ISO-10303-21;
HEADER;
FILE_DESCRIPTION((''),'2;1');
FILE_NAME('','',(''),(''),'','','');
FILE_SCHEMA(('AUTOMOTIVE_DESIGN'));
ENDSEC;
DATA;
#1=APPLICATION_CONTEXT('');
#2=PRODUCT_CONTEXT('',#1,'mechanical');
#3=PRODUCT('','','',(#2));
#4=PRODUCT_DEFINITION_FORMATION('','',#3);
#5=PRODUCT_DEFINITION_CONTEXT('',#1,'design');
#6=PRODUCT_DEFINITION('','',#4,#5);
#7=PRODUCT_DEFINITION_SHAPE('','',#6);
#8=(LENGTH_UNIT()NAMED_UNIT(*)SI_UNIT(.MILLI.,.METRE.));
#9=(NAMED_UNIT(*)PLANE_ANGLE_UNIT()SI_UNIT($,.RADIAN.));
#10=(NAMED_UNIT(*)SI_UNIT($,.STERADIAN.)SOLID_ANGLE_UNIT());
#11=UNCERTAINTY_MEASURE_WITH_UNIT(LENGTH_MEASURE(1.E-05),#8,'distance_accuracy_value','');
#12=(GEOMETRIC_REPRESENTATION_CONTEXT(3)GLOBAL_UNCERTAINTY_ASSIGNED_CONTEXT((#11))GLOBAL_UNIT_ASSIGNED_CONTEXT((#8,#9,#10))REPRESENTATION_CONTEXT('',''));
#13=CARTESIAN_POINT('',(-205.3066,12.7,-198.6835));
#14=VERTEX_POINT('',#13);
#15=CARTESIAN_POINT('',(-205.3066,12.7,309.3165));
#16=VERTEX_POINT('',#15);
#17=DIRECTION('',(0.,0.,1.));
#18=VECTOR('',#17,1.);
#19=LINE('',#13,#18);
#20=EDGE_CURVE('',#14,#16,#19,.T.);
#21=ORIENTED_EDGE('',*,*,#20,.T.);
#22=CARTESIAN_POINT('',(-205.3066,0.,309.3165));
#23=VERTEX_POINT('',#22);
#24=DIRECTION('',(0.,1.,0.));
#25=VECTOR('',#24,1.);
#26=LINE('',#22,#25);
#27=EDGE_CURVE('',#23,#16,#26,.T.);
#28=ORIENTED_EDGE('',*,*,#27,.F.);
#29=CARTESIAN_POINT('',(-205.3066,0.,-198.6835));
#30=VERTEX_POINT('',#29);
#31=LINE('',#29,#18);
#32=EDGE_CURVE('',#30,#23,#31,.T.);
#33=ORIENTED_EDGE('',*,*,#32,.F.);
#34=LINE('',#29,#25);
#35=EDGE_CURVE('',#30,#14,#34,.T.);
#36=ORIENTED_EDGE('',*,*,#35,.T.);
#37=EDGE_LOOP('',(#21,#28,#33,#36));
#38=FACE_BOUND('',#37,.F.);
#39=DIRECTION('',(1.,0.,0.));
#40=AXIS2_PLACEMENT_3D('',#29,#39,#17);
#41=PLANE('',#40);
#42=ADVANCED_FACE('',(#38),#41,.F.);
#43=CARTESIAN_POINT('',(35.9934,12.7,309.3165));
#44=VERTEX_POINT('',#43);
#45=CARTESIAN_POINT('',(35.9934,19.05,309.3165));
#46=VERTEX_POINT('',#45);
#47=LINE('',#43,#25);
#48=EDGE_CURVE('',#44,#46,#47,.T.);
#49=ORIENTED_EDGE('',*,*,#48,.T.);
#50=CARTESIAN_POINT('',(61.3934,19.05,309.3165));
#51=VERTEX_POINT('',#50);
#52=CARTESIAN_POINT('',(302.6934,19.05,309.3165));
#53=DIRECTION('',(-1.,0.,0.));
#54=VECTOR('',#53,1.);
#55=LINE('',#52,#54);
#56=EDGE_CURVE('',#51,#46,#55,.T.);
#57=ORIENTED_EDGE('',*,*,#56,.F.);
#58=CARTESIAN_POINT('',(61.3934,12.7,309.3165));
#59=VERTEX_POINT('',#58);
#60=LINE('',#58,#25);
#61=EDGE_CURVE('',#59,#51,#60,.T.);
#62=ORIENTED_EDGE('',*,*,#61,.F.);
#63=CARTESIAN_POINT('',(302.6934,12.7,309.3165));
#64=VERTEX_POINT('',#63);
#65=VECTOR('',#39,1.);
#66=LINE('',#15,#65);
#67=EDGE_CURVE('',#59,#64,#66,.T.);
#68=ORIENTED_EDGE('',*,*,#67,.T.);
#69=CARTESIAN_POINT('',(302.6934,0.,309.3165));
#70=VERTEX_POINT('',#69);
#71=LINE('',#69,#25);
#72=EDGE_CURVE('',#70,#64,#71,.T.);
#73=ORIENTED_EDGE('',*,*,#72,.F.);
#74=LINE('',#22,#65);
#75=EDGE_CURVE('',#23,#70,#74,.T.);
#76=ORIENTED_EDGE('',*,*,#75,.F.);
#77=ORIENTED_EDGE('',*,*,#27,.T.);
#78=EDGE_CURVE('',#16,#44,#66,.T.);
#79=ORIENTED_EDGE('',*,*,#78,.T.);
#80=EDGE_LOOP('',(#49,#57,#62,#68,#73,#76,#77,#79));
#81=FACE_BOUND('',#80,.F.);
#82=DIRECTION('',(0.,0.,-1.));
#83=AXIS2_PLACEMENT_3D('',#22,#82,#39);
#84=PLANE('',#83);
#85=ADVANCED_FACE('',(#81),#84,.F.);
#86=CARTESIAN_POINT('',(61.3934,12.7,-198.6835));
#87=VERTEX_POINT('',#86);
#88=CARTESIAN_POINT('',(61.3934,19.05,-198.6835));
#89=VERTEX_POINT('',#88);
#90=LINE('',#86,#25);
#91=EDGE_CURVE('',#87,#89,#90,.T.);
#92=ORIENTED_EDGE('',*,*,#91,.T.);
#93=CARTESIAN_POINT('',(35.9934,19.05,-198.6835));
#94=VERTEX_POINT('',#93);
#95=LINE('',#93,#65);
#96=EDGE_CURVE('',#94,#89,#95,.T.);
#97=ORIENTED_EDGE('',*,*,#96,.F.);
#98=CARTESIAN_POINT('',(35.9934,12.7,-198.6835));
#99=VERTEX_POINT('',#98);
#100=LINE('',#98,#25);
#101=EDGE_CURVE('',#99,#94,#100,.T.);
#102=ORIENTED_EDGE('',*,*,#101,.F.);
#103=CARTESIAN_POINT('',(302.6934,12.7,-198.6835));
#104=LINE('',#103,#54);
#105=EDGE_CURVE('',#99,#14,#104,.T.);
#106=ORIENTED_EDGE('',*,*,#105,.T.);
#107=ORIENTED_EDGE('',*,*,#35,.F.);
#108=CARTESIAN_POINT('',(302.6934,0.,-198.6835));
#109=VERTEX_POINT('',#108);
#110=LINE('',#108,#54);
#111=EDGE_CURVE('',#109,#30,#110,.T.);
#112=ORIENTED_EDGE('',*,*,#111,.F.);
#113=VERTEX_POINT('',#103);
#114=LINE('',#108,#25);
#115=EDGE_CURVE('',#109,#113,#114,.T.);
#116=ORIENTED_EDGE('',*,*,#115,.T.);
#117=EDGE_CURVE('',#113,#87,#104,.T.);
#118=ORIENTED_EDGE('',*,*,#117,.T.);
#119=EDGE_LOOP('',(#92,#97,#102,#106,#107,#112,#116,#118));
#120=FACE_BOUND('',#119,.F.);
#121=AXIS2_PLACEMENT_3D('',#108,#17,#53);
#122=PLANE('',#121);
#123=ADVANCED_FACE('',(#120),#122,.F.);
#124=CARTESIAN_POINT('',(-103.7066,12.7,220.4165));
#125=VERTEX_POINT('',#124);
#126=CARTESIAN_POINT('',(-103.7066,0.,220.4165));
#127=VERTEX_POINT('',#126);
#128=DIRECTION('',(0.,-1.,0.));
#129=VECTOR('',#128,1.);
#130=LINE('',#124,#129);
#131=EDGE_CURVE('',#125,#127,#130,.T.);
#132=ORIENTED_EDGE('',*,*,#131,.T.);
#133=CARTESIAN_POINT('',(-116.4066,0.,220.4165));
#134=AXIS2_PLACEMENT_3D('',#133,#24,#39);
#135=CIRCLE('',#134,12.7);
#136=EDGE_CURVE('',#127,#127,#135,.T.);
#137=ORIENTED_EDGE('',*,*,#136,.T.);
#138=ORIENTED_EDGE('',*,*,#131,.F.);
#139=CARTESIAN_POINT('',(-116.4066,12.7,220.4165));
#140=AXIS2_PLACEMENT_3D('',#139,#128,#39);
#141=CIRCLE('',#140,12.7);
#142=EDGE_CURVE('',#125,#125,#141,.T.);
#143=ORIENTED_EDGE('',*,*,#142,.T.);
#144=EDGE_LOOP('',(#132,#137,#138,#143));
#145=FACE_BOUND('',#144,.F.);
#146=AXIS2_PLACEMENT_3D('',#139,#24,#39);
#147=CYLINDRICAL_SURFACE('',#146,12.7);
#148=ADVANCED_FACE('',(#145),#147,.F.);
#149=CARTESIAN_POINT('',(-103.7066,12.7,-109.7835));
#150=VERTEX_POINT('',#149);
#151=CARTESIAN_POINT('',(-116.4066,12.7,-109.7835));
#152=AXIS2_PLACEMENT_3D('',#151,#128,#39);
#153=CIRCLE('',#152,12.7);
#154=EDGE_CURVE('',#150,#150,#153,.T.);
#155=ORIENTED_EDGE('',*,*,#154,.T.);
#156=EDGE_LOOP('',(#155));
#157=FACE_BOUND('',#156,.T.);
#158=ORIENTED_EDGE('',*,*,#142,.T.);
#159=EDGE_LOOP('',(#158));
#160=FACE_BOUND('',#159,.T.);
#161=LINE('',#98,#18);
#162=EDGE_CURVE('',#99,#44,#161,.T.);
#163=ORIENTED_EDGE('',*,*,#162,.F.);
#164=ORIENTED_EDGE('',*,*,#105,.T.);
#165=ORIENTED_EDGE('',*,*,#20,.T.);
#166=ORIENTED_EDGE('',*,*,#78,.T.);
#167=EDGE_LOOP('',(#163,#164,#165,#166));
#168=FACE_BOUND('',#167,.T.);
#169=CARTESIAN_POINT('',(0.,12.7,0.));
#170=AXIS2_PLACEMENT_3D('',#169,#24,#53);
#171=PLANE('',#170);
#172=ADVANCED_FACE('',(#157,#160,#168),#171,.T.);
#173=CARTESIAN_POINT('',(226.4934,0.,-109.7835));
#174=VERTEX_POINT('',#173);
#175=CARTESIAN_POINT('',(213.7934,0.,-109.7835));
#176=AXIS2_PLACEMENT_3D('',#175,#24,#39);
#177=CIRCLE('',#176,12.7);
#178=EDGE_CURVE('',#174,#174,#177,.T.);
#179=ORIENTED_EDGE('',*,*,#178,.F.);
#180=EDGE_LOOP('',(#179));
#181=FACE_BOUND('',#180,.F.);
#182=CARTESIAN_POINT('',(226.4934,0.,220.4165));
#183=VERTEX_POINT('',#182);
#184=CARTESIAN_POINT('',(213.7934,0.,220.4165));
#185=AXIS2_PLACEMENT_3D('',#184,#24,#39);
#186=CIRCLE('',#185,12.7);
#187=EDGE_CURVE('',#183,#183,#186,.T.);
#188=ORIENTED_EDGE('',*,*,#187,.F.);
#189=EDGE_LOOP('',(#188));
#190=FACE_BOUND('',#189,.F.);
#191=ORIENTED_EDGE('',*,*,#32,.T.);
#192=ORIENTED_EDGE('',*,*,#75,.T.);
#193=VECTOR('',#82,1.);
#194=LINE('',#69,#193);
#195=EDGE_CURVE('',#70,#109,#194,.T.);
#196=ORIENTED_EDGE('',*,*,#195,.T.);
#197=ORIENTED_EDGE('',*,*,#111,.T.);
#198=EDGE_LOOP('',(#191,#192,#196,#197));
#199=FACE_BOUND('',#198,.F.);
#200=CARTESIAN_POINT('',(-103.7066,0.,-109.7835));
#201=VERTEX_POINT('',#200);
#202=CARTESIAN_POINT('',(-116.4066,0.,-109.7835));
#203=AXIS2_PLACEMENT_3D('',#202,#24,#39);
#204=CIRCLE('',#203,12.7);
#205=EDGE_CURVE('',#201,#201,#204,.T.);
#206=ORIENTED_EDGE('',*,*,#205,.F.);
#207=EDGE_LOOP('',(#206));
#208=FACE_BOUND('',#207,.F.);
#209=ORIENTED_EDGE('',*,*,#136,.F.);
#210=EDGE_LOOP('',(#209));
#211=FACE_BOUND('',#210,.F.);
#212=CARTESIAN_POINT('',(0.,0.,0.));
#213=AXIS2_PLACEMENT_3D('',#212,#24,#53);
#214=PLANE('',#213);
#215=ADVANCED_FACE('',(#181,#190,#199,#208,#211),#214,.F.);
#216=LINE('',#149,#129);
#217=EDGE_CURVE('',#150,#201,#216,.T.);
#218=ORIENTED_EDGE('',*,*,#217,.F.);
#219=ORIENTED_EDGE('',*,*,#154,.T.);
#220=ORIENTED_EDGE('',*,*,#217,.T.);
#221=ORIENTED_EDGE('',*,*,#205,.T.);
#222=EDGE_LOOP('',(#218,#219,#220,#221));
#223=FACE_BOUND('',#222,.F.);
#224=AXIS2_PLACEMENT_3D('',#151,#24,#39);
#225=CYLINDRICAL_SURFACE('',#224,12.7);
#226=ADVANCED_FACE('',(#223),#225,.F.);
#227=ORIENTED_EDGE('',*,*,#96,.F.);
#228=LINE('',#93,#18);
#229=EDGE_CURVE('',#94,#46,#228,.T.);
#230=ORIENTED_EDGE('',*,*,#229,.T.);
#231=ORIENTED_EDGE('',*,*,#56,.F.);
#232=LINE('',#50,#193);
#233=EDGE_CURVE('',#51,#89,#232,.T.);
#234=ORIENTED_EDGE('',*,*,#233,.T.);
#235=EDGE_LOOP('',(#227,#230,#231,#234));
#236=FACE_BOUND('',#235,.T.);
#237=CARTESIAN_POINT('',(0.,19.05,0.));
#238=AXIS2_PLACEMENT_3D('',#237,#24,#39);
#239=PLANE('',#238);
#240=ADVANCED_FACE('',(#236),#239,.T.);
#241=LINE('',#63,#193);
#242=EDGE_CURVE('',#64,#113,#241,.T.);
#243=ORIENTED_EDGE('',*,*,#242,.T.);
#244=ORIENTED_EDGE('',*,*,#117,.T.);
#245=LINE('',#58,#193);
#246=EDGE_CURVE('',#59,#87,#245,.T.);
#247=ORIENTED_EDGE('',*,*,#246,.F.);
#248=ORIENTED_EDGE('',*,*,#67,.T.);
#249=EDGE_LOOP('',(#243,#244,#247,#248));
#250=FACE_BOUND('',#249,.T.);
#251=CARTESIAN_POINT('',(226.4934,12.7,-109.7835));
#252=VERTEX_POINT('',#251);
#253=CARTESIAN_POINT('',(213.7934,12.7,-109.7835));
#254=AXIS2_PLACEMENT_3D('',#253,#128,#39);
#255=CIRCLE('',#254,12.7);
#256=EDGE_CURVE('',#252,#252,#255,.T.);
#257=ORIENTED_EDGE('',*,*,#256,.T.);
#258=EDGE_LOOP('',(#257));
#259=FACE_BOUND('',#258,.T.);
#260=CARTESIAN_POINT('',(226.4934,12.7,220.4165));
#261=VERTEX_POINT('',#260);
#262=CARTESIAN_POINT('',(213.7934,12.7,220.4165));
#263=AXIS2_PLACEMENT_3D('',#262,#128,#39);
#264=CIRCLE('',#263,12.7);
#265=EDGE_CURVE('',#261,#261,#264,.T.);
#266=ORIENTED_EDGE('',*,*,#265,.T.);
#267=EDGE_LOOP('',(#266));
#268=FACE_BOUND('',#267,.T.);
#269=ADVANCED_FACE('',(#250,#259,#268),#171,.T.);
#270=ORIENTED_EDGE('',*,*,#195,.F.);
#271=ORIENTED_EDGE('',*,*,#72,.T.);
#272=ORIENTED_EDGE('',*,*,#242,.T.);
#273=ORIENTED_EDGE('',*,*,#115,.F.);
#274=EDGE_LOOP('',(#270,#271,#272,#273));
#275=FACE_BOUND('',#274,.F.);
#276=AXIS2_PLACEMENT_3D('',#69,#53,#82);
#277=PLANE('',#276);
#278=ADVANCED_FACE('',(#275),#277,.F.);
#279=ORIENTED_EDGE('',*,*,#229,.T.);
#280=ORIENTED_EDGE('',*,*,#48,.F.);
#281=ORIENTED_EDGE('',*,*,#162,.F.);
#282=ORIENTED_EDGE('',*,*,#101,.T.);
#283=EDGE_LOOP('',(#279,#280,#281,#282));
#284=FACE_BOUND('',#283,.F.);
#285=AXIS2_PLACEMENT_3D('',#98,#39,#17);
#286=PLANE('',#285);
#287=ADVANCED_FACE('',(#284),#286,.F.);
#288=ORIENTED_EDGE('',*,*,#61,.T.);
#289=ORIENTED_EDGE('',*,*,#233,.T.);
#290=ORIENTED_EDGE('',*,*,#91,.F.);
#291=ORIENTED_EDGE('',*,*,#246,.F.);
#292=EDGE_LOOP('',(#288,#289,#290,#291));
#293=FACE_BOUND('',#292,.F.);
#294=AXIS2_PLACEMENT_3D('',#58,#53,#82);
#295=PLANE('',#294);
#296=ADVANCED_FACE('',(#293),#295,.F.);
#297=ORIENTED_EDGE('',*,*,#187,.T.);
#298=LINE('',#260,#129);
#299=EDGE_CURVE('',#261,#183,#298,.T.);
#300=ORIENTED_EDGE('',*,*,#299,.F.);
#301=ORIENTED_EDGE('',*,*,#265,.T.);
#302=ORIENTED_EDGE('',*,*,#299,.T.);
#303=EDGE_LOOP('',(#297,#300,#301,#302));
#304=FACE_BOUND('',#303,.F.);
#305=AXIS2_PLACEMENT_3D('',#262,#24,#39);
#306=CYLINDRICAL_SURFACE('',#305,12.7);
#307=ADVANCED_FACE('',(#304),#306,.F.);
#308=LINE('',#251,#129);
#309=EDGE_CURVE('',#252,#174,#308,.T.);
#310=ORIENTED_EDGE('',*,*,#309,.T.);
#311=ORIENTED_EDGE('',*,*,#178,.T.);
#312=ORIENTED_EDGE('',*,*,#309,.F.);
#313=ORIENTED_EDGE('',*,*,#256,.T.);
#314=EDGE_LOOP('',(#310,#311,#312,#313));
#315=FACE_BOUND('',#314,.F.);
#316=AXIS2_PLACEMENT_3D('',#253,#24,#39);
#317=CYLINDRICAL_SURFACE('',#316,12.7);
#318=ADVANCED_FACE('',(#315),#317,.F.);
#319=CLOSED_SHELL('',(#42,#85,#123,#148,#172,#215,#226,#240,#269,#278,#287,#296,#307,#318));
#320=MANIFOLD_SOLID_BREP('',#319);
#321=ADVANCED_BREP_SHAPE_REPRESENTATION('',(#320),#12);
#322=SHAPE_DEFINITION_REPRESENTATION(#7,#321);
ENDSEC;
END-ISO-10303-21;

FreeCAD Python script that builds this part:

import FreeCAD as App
import Part
import Sketcher
from FreeCAD import Vector
Q = App.Units.Quantity

doc = App.newDocument("Part")
body = doc.addObject("PartDesign::Body", "Body")

sketch1 = body.newObject("Sketcher::SketchObject", "Sketch")
sketch1.AttachmentSupport = (doc.getObject("XZ_Plane"), [""])
sketch1.MapMode = "FlatFace"
sketch1.addGeometry([
    Part.LineSegment(Vector(-205.3066, -198.6835, 0), Vector(-205.3066, 309.3165, 0)),
    Part.LineSegment(Vector(-205.3066, 309.3165, 0), Vector(302.6934, 309.3165, 0)),
    Part.LineSegment(Vector(302.6934, 309.3165, 0), Vector(302.6934, -198.6835, 0)),
    Part.LineSegment(Vector(302.6934, -198.6835, 0), Vector(-205.3066, -198.6835, 0)),
], False)
sketch1.addConstraint([
    Sketcher.Constraint("Coincident", 0, 2, 1, 1),
    Sketcher.Constraint("Coincident", 1, 2, 2, 1),
    Sketcher.Constraint("Coincident", 2, 2, 3, 1),
    Sketcher.Constraint("Coincident", 3, 2, 0, 1),
    Sketcher.Constraint("Vertical", 0),
    Sketcher.Constraint("Horizontal", 1),
    Sketcher.Constraint("Vertical", 2),
    Sketcher.Constraint("Horizontal", 3),
    Sketcher.Constraint("Equal", 3, 0),
    Sketcher.Constraint("DistanceX", 1, 1, 1, 2, Q("20 in")),
    Sketcher.Constraint("DistanceX", 0, 2, -1, 1, 205.3066),
    Sketcher.Constraint("DistanceY", -1, 1, 0, 2, 309.3165),
])
pad1 = body.newObject("PartDesign::Pad", "Pad")
pad1.Profile = sketch1
pad1.Length = Q("0.5 in")
pad1.Reversed = True

sketch2 = body.newObject("Sketcher::SketchObject", "Sketch001")
sketch2.AttachmentSupport = (doc.getObject("XZ_Plane"), [""])
sketch2.MapMode = "FlatFace"
sketch2.AttachmentOffset = App.Placement(Vector(0, 0, -0.5 * 25.4), App.Rotation())
sketch2.addGeometry([
    Part.Circle(Vector(-116.4066, 220.4165, 0), Vector(0, 0, 1), 12.7),
    Part.Circle(Vector(-116.4066, -109.7835, 0), Vector(0, 0, 1), 12.7),
    Part.Circle(Vector(213.7934, -109.7835, 0), Vector(0, 0, 1), 12.7),
    Part.Circle(Vector(213.7934, 220.4165, 0), Vector(0, 0, 1), 12.7),
], False)
sketch2.addConstraint([
    Sketcher.Constraint("Equal", 0, 1),
    Sketcher.Constraint("Equal", 1, 2),
    Sketcher.Constraint("Equal", 2, 3),
    Sketcher.Constraint("Horizontal", 1, 3, 2, 3),
    Sketcher.Constraint("Horizontal", 0, 3, 3, 3),
    Sketcher.Constraint("Vertical", 0, 3, 1, 3),
    Sketcher.Constraint("Vertical", 2, 3, 3, 3),
    Sketcher.Constraint("Diameter", 0, Q("1 in")),
    Sketcher.Constraint("DistanceY", 1, 3, 0, 3, Q("13 in")),
    Sketcher.Constraint("DistanceX", 1, 3, 2, 3, Q("13 in")),
    Sketcher.Constraint("DistanceX", 0, 3, -1, 1, 116.4066),
    Sketcher.Constraint("DistanceY", -1, 1, 0, 3, 220.4165),
])
pocket1 = body.newObject("PartDesign::Pocket", "Pocket")
pocket1.Profile = sketch2
pocket1.Length = Q("0.5 in")
pocket1.Reversed = True

sketch3 = body.newObject("Sketcher::SketchObject", "Sketch002")
sketch3.AttachmentSupport = (doc.getObject("XZ_Plane"), [""])
sketch3.MapMode = "FlatFace"
sketch3.AttachmentOffset = App.Placement(Vector(0, 0, -0.5 * 25.4), App.Rotation())
sketch3.addGeometry([
    Part.LineSegment(Vector(35.9934, 309.3165, 0), Vector(61.3934, 309.3165, 0)),
    Part.LineSegment(Vector(61.3934, 309.3165, 0), Vector(61.3934, -198.6835, 0)),
    Part.LineSegment(Vector(61.3934, -198.6835, 0), Vector(35.9934, -198.6835, 0)),
    Part.LineSegment(Vector(35.9934, -198.6835, 0), Vector(35.9934, 309.3165, 0)),
], False)
sketch3.addConstraint([
    Sketcher.Constraint("Coincident", 0, 2, 1, 1),
    Sketcher.Constraint("Coincident", 1, 2, 2, 1),
    Sketcher.Constraint("Coincident", 2, 2, 3, 1),
    Sketcher.Constraint("Coincident", 3, 2, 0, 1),
    Sketcher.Constraint("Horizontal", 0),
    Sketcher.Constraint("Vertical", 1),
    Sketcher.Constraint("Horizontal", 2),
    Sketcher.Constraint("Vertical", 3),
    Sketcher.Constraint("DistanceX", 0, 1, 0, 2, Q("1 in")),
    Sketcher.Constraint("DistanceY", 1, 2, 1, 1, Q("20 in")),
    Sketcher.Constraint("DistanceX", -1, 1, 0, 2, 61.3934),
    Sketcher.Constraint("DistanceY", -1, 1, 0, 2, 309.3165),
])
pad2 = body.newObject("PartDesign::Pad", "Pad001")
pad2.Profile = sketch3
pad2.Length = Q("0.25 in")
pad2.Reversed = True

doc.recompute()
